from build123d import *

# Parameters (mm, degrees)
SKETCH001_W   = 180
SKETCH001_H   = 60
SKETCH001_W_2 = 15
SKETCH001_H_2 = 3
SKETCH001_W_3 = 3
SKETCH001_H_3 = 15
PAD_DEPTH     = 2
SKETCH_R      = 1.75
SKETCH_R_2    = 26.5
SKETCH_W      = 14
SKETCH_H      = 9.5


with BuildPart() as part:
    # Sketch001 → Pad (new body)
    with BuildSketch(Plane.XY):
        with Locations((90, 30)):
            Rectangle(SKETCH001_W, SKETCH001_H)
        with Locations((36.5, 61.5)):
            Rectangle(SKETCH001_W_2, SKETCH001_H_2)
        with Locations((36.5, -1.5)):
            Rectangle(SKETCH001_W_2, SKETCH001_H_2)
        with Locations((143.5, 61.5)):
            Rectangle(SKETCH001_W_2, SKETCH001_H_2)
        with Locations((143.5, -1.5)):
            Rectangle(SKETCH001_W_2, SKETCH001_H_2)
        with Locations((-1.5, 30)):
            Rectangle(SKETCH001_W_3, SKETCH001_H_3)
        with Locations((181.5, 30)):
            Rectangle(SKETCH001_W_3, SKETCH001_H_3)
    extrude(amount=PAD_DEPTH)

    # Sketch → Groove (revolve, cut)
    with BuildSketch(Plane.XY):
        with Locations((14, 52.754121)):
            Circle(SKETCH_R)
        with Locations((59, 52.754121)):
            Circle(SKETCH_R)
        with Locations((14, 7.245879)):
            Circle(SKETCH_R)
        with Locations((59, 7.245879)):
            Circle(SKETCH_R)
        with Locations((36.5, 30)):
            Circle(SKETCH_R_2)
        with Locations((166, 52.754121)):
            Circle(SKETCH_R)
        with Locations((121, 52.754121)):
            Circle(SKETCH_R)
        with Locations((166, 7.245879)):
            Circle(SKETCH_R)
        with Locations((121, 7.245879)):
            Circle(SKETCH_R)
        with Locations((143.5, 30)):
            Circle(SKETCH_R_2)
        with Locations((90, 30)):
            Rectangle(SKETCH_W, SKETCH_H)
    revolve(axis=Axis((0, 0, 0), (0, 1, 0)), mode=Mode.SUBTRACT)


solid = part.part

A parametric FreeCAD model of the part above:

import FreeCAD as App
import Part
import Sketcher
Q = App.Units.Quantity


def add_polygon(sketch, points):
    """Adds a closed chain of lines whose ends are joined by coincident constraints."""
    first, n = sketch.GeometryCount, len(points)
    for a, b in zip(points, points[1:] + points[:1]):
        sketch.addGeometry(Part.LineSegment(App.Vector(*a, 0), App.Vector(*b, 0)), False)
    for i in range(n):
        sketch.addConstraint(Sketcher.Constraint("Coincident", first + i, 2, first + (i + 1) % n, 1))

doc = App.newDocument("Part")
body = doc.addObject("PartDesign::Body", "Body")

sketch1 = doc.addObject("Sketcher::SketchObject", "Sketch")
body.addObject(sketch1)
sketch1.AttachmentSupport = (doc.XY_Plane, [""])
sketch1.MapMode = "FlatFace"
add_polygon(sketch1, [(0, 22.5), (0, 0), (29, 0), (29, -3), (44, -3), (44, 0), (136, 0), (136, -3), (151, -3), (151, 0), (180, 0), (180, 22.5), (183, 22.5), (183, 37.5), (180, 37.5), (180, 60), (151, 60), (151, 63), (136, 63), (136, 60), (44, 60), (44, 63), (29, 63), (29, 60), (0, 60), (0, 37.5), (-3, 37.5), (-3, 22.5)])
sketch1.addConstraint([
    Sketcher.Constraint("Vertical", 0),
    Sketcher.Constraint("Horizontal", 1),
    Sketcher.Constraint("Vertical", 2),
    Sketcher.Constraint("Horizontal", 3),
    Sketcher.Constraint("Vertical", 4),
    Sketcher.Constraint("Horizontal", 5),
    Sketcher.Constraint("Vertical", 6),
    Sketcher.Constraint("Horizontal", 7),
    Sketcher.Constraint("Vertical", 8),
    Sketcher.Constraint("Horizontal", 9),
    Sketcher.Constraint("Vertical", 10),
    Sketcher.Constraint("Horizontal", 11),
    Sketcher.Constraint("Vertical", 12),
    Sketcher.Constraint("Horizontal", 13),
    Sketcher.Constraint("Vertical", 14),
    Sketcher.Constraint("Horizontal", 15),
    Sketcher.Constraint("Vertical", 16),
    Sketcher.Constraint("Horizontal", 17),
    Sketcher.Constraint("Vertical", 18),
    Sketcher.Constraint("Horizontal", 19),
    Sketcher.Constraint("Vertical", 20),
    Sketcher.Constraint("Horizontal", 21),
    Sketcher.Constraint("Vertical", 22),
    Sketcher.Constraint("Horizontal", 23),
    Sketcher.Constraint("Vertical", 24),
    Sketcher.Constraint("Horizontal", 25),
    Sketcher.Constraint("Vertical", 26),
    Sketcher.Constraint("Horizontal", 27),
    Sketcher.Constraint("Coincident", 0, 2, -1, 1),
    Sketcher.Constraint("PointOnObject", 4, 2, -1),
    Sketcher.Constraint("PointOnObject", 8, 2, -1),
    Sketcher.Constraint("PointOnObject", 23, 2, -2),
    Sketcher.Constraint("Horizontal", 3, 2, 6, 2),
    Sketcher.Constraint("Horizontal", 15, 2, 18, 2),
    Sketcher.Constraint("Horizontal", 17, 2, 20, 2),
    Sketcher.Constraint("Horizontal", 19, 2, 22, 2),
    Sketcher.Constraint("Horizontal", 13, 2, 24, 2),
    Sketcher.Constraint("Horizontal", 11, 2, 26, 2),
    Sketcher.Constraint("Vertical", 10, 2, 13, 2),
    Sketcher.Constraint("Vertical", 8, 2, 15, 2),
    Sketcher.Constraint("Vertical", 6, 2, 17, 2),
    Sketcher.Constraint("Vertical", 4, 2, 19, 2),
    Sketcher.Constraint("Vertical", 2, 2, 21, 2),
    Sketcher.Constraint("Equal", 3, 7),
    Sketcher.Constraint("Equal", 1, 9),
    Sketcher.Constraint("Equal", 13, 25),
    Sketcher.Constraint("Equal", 27, 2),
    Sketcher.Constraint("Equal", 21, 12),
    Sketcher.Constraint("Equal", 10, 14),
    Sketcher.Constraint("Equal", 8, 16),
    Sketcher.Constraint("DistanceX", 1, 1, 1, 2, Q("29 mm")),
    Sketcher.Constraint("DistanceX", 3, 1, 3, 2, Q("15 mm")),
    Sketcher.Constraint("DistanceX", 5, 1, 5, 2, Q("92 mm")),
    Sketcher.Constraint("DistanceX", 11, 1, 11, 2, Q("3 mm")),
    Sketcher.Constraint("DistanceY", 0, 2, 0, 1, Q("22.5 mm")),
])
pad1 = doc.addObject("PartDesign::Pad", "Pad")
body.addObject(pad1)
pad1.Profile = sketch1
pad1.Length = 2

sketch2 = doc.addObject("Sketcher::SketchObject", "Sketch001")
body.addObject(sketch2)
sketch2.AttachmentSupport = (doc.XY_Plane, [""])
sketch2.MapMode = "FlatFace"
sketch2.addGeometry(Part.Circle(App.Vector(14, 52.8, 0), App.Vector(0, 0, 1), 1.8), False)
sketch2.addGeometry(Part.Circle(App.Vector(59, 52.8, 0), App.Vector(0, 0, 1), 1.8), False)
sketch2.addGeometry(Part.Circle(App.Vector(14, 7.2, 0), App.Vector(0, 0, 1), 1.8), False)
sketch2.addGeometry(Part.Circle(App.Vector(59, 7.2, 0), App.Vector(0, 0, 1), 1.8), False)
sketch2.addGeometry(Part.Circle(App.Vector(36.5, 30, 0), App.Vector(0, 0, 1), 26.5), False)
sketch2.addGeometry(Part.Circle(App.Vector(166, 52.8, 0), App.Vector(0, 0, 1), 1.8), False)
sketch2.addGeometry(Part.Circle(App.Vector(121, 52.8, 0), App.Vector(0, 0, 1), 1.8), False)
sketch2.addGeometry(Part.Circle(App.Vector(166, 7.2, 0), App.Vector(0, 0, 1), 1.8), False)
sketch2.addGeometry(Part.Circle(App.Vector(121, 7.2, 0), App.Vector(0, 0, 1), 1.8), False)
sketch2.addGeometry(Part.Circle(App.Vector(143.5, 30, 0), App.Vector(0, 0, 1), 26.5), False)
add_polygon(sketch2, [(83, 34.8), (83, 25.2), (97, 25.2), (97, 34.8)])
sketch2.addConstraint([
    Sketcher.Constraint("Vertical", 10),
    Sketcher.Constraint("Horizontal", 11),
    Sketcher.Constraint("Vertical", 12),
    Sketcher.Constraint("Horizontal", 13),
    Sketcher.Constraint("Equal", 0, 1),
    Sketcher.Constraint("Equal", 1, 2),
    Sketcher.Constraint("Equal", 2, 3),
    Sketcher.Constraint("Equal", 3, 5),
    Sketcher.Constraint("Equal", 5, 6),
    Sketcher.Constraint("Equal", 6, 7),
    Sketcher.Constraint("Equal", 7, 8),
    Sketcher.Constraint("Equal", 4, 9),
    Sketcher.Constraint("Horizontal", 0, 3, 1, 3),
    Sketcher.Constraint("Horizontal", 2, 3, 3, 3),
    Sketcher.Constraint("Horizontal", 1, 3, 5, 3),
    Sketcher.Constraint("Horizontal", 5, 3, 6, 3),
    Sketcher.Constraint("Horizontal", 3, 3, 7, 3),
    Sketcher.Constraint("Horizontal", 7, 3, 8, 3),
    Sketcher.Constraint("Horizontal", 4, 3, 9, 3),
    Sketcher.Constraint("Vertical", 0, 3, 2, 3),
    Sketcher.Constraint("Vertical", 1, 3, 3, 3),
    Sketcher.Constraint("Vertical", 5, 3, 7, 3),
    Sketcher.Constraint("Vertical", 6, 3, 8, 3),
    Sketcher.Constraint("Diameter", 4, Q("53 mm")),
    Sketcher.Constraint("Diameter", 0, Q("3.5 mm")),
    Sketcher.Constraint("DistanceX", 11, 1, 11, 2, Q("14 mm")),
    Sketcher.Constraint("DistanceY", 10, 2, 10, 1, Q("9.5 mm")),
    Sketcher.Constraint("DistanceX", -1, 1, 0, 3, Q("14 mm")),
    Sketcher.Constraint("DistanceX", -1, 1, 1, 3, Q("59 mm")),
    Sketcher.Constraint("DistanceY", -1, 1, 4, 3, Q("30 mm")),
    Sketcher.Constraint("DistanceX", -1, 1, 5, 3, Q("166 mm")),
    Sketcher.Constraint("DistanceX", -1, 1, 6, 3, Q("121 mm")),
    Sketcher.Constraint("DistanceX", -1, 1, 10, 2, Q("83 mm")),
    Sketcher.Constraint("DistanceX", -1, 1, 4, 3, Q("36.5 mm")),
    Sketcher.Constraint("DistanceX", -1, 1, 9, 3, Q("143.5 mm")),
    Sketcher.Constraint("DistanceY", -1, 1, 10, 2, Q("25.25 mm")),
    Sketcher.Constraint("DistanceY", -1, 1, 0, 3, Q("52.754121 mm")),
    Sketcher.Constraint("DistanceY", -1, 1, 2, 3, Q("7.245879 mm")),
])
groove = doc.addObject("PartDesign::Groove", "Groove")
body.addObject(groove)
groove.Profile = sketch2
groove.ReferenceAxis = (sketch2, ["V_Axis"])
groove.Angle = 360

doc.recompute()
